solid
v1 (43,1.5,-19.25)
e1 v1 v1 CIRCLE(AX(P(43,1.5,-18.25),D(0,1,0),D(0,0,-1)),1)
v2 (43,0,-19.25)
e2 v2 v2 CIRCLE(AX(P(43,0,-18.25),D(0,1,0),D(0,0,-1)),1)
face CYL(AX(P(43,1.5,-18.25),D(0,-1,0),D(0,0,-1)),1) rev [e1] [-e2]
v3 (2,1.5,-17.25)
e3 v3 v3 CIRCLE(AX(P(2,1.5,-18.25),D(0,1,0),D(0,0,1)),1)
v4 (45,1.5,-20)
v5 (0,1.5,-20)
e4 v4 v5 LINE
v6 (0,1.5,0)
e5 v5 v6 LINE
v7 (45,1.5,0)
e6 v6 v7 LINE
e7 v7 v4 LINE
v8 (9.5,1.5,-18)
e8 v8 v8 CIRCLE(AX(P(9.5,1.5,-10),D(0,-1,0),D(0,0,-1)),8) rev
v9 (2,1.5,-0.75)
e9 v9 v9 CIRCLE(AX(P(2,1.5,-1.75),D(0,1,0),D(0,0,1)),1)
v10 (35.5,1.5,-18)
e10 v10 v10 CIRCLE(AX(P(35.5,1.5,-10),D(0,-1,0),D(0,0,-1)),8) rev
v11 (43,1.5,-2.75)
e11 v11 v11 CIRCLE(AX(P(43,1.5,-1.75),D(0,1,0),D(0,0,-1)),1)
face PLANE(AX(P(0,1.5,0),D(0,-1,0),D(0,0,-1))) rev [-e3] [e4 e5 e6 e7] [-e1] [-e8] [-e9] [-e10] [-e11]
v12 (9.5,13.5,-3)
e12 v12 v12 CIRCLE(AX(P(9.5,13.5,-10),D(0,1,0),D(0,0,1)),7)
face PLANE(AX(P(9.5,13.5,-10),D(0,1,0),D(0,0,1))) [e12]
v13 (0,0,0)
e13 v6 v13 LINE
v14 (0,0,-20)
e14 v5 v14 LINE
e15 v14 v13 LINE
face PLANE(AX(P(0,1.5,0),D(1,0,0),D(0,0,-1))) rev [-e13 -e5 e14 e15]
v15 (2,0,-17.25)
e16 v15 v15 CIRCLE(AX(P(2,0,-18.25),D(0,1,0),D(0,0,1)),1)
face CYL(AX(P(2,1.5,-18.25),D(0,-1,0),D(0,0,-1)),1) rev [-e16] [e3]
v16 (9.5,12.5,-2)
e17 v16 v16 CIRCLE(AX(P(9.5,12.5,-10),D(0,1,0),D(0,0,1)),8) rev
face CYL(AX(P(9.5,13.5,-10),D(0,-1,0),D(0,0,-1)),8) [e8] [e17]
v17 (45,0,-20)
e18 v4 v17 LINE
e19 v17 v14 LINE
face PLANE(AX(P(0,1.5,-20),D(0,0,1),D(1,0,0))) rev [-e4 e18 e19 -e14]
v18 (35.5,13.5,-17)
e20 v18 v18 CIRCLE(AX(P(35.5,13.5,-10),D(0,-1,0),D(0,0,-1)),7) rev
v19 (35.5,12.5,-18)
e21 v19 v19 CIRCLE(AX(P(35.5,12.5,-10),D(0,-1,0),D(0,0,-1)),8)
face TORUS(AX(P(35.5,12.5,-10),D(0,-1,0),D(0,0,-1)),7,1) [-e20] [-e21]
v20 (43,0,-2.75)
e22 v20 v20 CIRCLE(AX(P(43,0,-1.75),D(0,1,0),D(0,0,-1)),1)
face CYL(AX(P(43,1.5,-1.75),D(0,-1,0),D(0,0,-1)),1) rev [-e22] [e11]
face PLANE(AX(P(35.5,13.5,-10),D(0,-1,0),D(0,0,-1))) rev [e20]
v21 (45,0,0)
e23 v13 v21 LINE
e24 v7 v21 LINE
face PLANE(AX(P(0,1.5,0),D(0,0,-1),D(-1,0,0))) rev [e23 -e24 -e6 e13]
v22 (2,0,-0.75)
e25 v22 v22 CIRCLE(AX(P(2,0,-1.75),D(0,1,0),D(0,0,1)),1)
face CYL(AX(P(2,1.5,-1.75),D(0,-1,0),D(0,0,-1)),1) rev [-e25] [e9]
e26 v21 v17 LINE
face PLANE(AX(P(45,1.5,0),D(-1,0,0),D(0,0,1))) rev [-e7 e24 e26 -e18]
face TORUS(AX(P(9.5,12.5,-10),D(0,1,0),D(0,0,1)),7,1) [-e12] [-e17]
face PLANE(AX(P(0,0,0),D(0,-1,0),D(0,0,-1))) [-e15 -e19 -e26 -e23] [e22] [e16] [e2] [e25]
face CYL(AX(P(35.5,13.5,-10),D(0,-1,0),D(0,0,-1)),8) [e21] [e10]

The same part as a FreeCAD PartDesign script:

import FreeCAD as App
import Part
import Sketcher

V = App.Vector
Q = App.Units.Quantity


def edges_at(feature, points):
    """Names of the edges that pass closest to the given points."""
    edges = feature.Shape.Edges
    near = lambda p: min(range(len(edges)), key=lambda i: edges[i].distToShape(Part.Vertex(*p))[0])
    return sorted({f"Edge{near(p) + 1}" for p in points})

doc = App.newDocument("Part")
body = doc.addObject("PartDesign::Body", "Body")

# Sketch on XZ plane
sketch1 = body.newObject("Sketcher::SketchObject", "Sketch")
sketch1.AttachmentSupport = (doc.getObject("XZ_Plane"), [""])
sketch1.MapMode = "FlatFace"
sketch1.addGeometry(Part.LineSegment(V(0, -20, 0), V(0, 0, 0)), False)
sketch1.addGeometry(Part.LineSegment(V(0, 0, 0), V(45, 0, 0)), False)
sketch1.addGeometry(Part.LineSegment(V(45, 0, 0), V(45, -20, 0)), False)
sketch1.addGeometry(Part.LineSegment(V(45, -20, 0), V(0, -20, 0)), False)
sketch1.addGeometry(Part.Circle(V(2, -1.8, 0), V(0, 0, 1), 1), False)
sketch1.addGeometry(Part.Circle(V(43, -1.8, 0), V(0, 0, 1), 1), False)
sketch1.addGeometry(Part.Circle(V(2, -18.2, 0), V(0, 0, 1), 1), False)
sketch1.addGeometry(Part.Circle(V(43, -18.2, 0), V(0, 0, 1), 1), False)
sketch1.addConstraint(Sketcher.Constraint("Coincident", 0, 2, 1, 1))
sketch1.addConstraint(Sketcher.Constraint("Coincident", 1, 2, 2, 1))
sketch1.addConstraint(Sketcher.Constraint("Coincident", 2, 2, 3, 1))
sketch1.addConstraint(Sketcher.Constraint("Coincident", 3, 2, 0, 1))
sketch1.addConstraint(Sketcher.Constraint("Vertical", 0))
sketch1.addConstraint(Sketcher.Constraint("Horizontal", 1))
sketch1.addConstraint(Sketcher.Constraint("Vertical", 2))
sketch1.addConstraint(Sketcher.Constraint("Horizontal", 3))
sketch1.addConstraint(Sketcher.Constraint("Coincident", 0, 2, -1, 1))
sketch1.addConstraint(Sketcher.Constraint("Equal", 4, 5))
sketch1.addConstraint(Sketcher.Constraint("Equal", 5, 6))
sketch1.addConstraint(Sketcher.Constraint("Equal", 6, 7))
sketch1.addConstraint(Sketcher.Constraint("Horizontal", 4, 3, 5, 3))
sketch1.addConstraint(Sketcher.Constraint("Horizontal", 6, 3, 7, 3))
sketch1.addConstraint(Sketcher.Constraint("Vertical", 4, 3, 6, 3))
sketch1.addConstraint(Sketcher.Constraint("Vertical", 5, 3, 7, 3))
sketch1.addConstraint(Sketcher.Constraint("Diameter", 4, Q("2 mm")))
sketch1.addConstraint(Sketcher.Constraint("DistanceX", 1, 1, 1, 2, Q("45 mm")))
sketch1.addConstraint(Sketcher.Constraint("DistanceY", 0, 1, 0, 2, Q("20 mm")))
sketch1.addConstraint(Sketcher.Constraint("DistanceX", -1, 1, 4, 3, Q("2 mm")))
sketch1.addConstraint(Sketcher.Constraint("DistanceX", -1, 1, 5, 3, Q("43 mm")))
sketch1.addConstraint(Sketcher.Constraint("DistanceY", 6, 3, 4, 3, Q("16.5 mm")))
sketch1.addConstraint(Sketcher.Constraint("DistanceY", 4, 3, -1, 1, Q("1.75 mm")))
pad1 = body.newObject("PartDesign::Pad", "Pad")
pad1.Profile = sketch1
pad1.Length = 1.5
pad1.Reversed = True

# Sketch on XZ plane
sketch2 = body.newObject("Sketcher::SketchObject", "Sketch001")
sketch2.AttachmentSupport = (doc.getObject("XZ_Plane"), [""])
sketch2.MapMode = "FlatFace"
sketch2.AttachmentOffset = App.Placement(V(0, 0, -1.5), App.Rotation())
sketch2.addGeometry(Part.Circle(V(10, -10, 0), V(0, 0, 1), 8), False)
sketch2.addGeometry(Part.Circle(V(36, -10, 0), V(0, 0, 1), 8), False)
sketch2.addConstraint(Sketcher.Constraint("Equal", 0, 1))
sketch2.addConstraint(Sketcher.Constraint("Horizontal", 0, 3, 1, 3))
sketch2.addConstraint(Sketcher.Constraint("Diameter", 0, Q("16 mm")))
sketch2.addConstraint(Sketcher.Constraint("DistanceY", 0, 3, -1, 1, Q("10 mm")))
sketch2.addConstraint(Sketcher.Constraint("DistanceX", 0, 3, 1, 3, Q("26 mm")))
sketch2.addConstraint(Sketcher.Constraint("DistanceX", -1, 1, 0, 3, Q("9.5 mm")))
pad2 = body.newObject("PartDesign::Pad", "Pad001")
pad2.Profile = sketch2
pad2.Length = 12
pad2.Reversed = True
doc.recompute()

fillet = body.newObject("PartDesign::Fillet", "Fillet")
fillet.Base = (pad2, edges_at(pad2, [(1.5, 13.5, -10), (27.5, 13.5, -10)]))
fillet.Radius = 1

doc.recompute()
